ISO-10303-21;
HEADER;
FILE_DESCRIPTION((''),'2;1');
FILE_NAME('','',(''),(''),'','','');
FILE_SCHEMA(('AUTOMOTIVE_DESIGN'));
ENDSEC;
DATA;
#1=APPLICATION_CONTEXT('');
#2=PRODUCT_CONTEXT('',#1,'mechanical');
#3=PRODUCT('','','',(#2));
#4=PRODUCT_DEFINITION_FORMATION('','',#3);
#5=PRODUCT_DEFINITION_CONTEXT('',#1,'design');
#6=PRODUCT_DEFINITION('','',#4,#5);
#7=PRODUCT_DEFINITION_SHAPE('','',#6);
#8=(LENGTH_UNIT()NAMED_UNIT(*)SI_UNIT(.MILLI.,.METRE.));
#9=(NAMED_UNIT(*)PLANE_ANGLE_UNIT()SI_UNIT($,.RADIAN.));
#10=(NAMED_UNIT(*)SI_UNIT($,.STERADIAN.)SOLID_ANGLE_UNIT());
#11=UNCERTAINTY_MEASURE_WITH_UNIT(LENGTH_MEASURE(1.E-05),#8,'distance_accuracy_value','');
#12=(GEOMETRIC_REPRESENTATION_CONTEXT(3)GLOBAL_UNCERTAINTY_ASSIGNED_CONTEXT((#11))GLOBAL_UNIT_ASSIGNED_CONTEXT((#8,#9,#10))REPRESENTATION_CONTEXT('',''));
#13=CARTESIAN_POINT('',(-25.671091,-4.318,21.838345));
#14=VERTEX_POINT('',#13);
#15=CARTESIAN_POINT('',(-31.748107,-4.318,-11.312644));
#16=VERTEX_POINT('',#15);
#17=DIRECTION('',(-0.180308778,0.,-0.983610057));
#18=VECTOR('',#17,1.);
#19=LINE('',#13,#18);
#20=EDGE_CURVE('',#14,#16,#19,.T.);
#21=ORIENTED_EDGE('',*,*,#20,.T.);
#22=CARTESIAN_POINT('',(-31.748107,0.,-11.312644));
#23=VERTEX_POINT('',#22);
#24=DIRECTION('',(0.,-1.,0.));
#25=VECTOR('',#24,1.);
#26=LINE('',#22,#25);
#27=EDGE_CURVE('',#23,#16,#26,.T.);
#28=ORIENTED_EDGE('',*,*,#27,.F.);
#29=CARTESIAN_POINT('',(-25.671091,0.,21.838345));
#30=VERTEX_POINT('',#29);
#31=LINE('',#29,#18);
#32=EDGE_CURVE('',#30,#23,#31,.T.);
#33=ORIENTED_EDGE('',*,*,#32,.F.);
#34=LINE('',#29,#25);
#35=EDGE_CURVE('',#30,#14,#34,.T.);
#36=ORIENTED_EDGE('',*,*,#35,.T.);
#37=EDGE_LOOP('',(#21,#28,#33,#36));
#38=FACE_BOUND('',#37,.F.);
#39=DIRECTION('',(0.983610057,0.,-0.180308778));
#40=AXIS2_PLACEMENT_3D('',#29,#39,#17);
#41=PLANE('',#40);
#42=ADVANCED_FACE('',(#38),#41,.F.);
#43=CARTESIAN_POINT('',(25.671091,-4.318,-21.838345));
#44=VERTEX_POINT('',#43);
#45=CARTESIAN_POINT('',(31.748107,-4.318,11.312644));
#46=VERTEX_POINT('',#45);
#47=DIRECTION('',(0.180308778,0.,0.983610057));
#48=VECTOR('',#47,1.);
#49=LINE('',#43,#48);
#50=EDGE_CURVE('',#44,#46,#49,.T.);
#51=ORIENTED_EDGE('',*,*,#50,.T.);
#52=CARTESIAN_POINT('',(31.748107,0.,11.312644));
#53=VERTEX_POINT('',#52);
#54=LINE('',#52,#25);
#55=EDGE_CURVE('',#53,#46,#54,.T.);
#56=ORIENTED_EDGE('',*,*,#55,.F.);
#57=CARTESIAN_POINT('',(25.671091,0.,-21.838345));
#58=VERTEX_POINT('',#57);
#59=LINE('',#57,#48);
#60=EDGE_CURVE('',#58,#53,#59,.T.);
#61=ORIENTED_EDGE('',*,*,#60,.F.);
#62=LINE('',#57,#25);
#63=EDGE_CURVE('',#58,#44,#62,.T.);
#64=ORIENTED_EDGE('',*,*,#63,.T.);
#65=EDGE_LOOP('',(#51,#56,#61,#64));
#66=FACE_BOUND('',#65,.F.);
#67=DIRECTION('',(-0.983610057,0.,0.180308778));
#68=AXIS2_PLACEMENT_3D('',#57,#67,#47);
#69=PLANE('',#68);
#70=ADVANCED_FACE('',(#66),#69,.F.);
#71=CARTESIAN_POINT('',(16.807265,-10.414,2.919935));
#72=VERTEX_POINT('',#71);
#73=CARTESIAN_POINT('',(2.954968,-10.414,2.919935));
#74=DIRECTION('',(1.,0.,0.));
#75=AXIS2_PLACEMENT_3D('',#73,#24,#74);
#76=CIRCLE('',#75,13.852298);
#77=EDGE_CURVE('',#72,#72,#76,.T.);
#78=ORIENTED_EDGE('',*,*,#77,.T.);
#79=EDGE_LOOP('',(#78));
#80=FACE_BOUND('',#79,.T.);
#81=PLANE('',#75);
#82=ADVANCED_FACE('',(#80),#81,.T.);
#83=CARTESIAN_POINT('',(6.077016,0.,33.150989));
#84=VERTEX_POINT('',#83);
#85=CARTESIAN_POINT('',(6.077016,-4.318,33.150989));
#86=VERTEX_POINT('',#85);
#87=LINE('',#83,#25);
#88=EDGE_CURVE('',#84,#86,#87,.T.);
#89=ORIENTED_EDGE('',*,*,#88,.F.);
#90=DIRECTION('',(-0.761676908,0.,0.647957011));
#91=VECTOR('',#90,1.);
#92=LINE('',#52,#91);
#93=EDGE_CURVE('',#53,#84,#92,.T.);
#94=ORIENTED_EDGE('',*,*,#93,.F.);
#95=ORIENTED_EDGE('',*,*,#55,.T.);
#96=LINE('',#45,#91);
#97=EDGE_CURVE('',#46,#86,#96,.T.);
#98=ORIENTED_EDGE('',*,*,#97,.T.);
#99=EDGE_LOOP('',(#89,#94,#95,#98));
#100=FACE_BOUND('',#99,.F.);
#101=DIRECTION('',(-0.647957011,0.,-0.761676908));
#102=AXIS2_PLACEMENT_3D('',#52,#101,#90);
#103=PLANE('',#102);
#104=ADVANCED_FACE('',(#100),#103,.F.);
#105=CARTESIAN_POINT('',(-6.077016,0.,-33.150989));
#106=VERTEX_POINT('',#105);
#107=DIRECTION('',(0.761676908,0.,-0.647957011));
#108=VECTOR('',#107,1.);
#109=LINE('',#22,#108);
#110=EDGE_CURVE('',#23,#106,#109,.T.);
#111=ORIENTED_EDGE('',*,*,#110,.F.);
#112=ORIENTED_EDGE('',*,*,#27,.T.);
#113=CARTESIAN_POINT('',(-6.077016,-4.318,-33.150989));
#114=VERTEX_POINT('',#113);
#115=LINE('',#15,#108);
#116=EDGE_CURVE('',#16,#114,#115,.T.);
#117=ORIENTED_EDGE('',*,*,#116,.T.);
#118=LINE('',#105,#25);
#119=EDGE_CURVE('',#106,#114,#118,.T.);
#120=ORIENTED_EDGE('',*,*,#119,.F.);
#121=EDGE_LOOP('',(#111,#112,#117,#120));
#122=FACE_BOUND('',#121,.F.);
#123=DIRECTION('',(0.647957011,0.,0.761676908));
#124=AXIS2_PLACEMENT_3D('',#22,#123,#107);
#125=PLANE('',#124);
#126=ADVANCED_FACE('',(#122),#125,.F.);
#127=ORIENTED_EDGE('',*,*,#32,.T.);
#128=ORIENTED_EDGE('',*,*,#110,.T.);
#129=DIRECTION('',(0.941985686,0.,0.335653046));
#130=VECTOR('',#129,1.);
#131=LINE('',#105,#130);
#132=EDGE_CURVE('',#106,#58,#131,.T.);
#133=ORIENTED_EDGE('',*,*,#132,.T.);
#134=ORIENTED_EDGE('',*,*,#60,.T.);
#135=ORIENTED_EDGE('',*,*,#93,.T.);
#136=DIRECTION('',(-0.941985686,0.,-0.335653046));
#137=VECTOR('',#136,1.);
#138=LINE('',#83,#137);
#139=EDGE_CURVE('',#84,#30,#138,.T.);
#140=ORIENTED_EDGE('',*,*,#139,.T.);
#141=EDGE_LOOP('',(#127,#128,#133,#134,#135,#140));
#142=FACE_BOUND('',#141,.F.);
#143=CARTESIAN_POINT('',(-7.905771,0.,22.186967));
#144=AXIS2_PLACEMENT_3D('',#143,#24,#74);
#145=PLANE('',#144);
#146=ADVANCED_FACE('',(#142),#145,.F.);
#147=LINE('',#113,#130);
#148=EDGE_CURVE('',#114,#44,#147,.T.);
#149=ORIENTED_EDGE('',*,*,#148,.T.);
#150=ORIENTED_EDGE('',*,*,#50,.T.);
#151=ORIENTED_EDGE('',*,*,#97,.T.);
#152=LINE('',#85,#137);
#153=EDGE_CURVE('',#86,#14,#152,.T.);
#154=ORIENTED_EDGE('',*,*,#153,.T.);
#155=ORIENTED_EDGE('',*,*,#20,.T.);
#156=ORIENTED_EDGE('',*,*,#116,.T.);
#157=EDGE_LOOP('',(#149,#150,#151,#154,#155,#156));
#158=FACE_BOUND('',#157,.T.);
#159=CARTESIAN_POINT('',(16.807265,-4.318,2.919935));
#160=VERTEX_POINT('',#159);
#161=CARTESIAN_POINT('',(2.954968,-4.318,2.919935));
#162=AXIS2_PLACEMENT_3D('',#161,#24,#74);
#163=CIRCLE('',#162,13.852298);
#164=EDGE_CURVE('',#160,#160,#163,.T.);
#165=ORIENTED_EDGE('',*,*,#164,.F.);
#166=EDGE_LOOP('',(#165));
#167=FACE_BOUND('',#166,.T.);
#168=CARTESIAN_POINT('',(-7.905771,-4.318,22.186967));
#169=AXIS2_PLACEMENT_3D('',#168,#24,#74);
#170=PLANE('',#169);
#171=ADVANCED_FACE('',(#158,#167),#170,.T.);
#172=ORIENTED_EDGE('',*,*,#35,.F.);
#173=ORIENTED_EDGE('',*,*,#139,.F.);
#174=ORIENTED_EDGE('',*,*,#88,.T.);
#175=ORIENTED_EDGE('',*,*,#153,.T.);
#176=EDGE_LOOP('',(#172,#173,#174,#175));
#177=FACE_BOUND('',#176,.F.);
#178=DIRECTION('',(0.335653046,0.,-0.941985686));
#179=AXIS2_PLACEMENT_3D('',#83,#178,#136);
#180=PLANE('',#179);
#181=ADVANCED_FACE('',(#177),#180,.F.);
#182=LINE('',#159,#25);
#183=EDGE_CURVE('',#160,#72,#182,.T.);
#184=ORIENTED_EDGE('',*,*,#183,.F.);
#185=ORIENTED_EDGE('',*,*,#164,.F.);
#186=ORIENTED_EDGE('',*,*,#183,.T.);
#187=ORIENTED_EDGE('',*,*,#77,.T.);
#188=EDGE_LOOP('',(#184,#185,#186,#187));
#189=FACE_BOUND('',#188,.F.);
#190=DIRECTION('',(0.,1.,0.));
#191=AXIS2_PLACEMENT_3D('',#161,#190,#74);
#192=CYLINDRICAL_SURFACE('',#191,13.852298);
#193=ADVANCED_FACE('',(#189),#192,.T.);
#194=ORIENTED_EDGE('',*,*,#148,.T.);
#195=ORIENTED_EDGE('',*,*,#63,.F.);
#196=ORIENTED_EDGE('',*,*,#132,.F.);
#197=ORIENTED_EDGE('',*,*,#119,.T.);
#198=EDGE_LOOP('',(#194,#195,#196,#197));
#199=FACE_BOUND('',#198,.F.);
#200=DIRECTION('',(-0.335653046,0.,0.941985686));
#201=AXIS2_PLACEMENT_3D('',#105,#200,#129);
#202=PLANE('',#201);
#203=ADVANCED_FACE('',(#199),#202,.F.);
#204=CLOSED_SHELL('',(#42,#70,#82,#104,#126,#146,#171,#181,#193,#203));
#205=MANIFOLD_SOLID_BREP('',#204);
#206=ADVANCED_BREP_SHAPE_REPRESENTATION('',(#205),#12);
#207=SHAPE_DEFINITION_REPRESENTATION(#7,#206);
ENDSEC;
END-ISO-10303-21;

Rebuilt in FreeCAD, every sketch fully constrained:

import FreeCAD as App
import Part
import Sketcher
Q = App.Units.Quantity


def add_polygon(sketch, points):
    """Adds a closed chain of lines whose ends are joined by coincident constraints."""
    first, n = sketch.GeometryCount, len(points)
    for a, b in zip(points, points[1:] + points[:1]):
        sketch.addGeometry(Part.LineSegment(App.Vector(*a, 0), App.Vector(*b, 0)), False)
    for i in range(n):
        sketch.addConstraint(Sketcher.Constraint("Coincident", first + i, 2, first + (i + 1) % n, 1))

doc = App.newDocument("Part")
body = doc.addObject("PartDesign::Body", "Body")

# Sketch on XZ plane
sketch1 = body.newObject("Sketcher::SketchObject", "Sketch")
sketch1.AttachmentSupport = (doc.getObject("XZ_Plane"), [""])
sketch1.MapMode = "FlatFace"
add_polygon(sketch1, [(6, 33), (-26, 22), (-32, -11), (-6, -33), (26, -22), (32, 11)])  # lines 0-5
sketch1.addConstraint([
    Sketcher.Constraint("Symmetric", 0, 2, 3, 2, -1, 1),
    Sketcher.Constraint("Symmetric", 1, 2, 4, 2, -1, 1),
    Sketcher.Constraint("Symmetric", 2, 2, 5, 2, -1, 1),
    Sketcher.Constraint("Equal", 0, 1),
    Sketcher.Constraint("Equal", 1, 2),
    Sketcher.Constraint("DistanceY", 3, 2, 1, 2, 10.525701),
    Sketcher.Constraint("DistanceX", 0, 2, -1, 1, 25.671091),
    Sketcher.Constraint("DistanceY", 2, 2, -1, 1, 33.150989),
    Sketcher.Constraint("DistanceY", 1, 2, 0, 2, 33.150989),
])
pad1 = body.newObject("PartDesign::Pad", "Pad")
pad1.Profile = sketch1
pad1.Length = Q("0.17 in")

# Sketch on XZ plane
sketch2 = body.newObject("Sketcher::SketchObject", "Sketch001")
sketch2.AttachmentSupport = (doc.getObject("XZ_Plane"), [""])
sketch2.MapMode = "FlatFace"
sketch2.AttachmentOffset = App.Placement(App.Vector(0, 0, 0.17 * 25.4), App.Rotation())
sketch2.addGeometry(Part.Circle(App.Vector(3, 3, 0), App.Vector(0, 0, 1), 14), False)
sketch2.addConstraint([
    Sketcher.Constraint("Diameter", 0, 27.704595),
    Sketcher.Constraint("DistanceX", -1, 1, 0, 3, 2.954968),
    Sketcher.Constraint("DistanceY", -1, 1, 0, 3, 2.919935),
])
pad2 = body.newObject("PartDesign::Pad", "Pad001")
pad2.Profile = sketch2
pad2.Length = Q("0.24 in")

doc.recompute()
